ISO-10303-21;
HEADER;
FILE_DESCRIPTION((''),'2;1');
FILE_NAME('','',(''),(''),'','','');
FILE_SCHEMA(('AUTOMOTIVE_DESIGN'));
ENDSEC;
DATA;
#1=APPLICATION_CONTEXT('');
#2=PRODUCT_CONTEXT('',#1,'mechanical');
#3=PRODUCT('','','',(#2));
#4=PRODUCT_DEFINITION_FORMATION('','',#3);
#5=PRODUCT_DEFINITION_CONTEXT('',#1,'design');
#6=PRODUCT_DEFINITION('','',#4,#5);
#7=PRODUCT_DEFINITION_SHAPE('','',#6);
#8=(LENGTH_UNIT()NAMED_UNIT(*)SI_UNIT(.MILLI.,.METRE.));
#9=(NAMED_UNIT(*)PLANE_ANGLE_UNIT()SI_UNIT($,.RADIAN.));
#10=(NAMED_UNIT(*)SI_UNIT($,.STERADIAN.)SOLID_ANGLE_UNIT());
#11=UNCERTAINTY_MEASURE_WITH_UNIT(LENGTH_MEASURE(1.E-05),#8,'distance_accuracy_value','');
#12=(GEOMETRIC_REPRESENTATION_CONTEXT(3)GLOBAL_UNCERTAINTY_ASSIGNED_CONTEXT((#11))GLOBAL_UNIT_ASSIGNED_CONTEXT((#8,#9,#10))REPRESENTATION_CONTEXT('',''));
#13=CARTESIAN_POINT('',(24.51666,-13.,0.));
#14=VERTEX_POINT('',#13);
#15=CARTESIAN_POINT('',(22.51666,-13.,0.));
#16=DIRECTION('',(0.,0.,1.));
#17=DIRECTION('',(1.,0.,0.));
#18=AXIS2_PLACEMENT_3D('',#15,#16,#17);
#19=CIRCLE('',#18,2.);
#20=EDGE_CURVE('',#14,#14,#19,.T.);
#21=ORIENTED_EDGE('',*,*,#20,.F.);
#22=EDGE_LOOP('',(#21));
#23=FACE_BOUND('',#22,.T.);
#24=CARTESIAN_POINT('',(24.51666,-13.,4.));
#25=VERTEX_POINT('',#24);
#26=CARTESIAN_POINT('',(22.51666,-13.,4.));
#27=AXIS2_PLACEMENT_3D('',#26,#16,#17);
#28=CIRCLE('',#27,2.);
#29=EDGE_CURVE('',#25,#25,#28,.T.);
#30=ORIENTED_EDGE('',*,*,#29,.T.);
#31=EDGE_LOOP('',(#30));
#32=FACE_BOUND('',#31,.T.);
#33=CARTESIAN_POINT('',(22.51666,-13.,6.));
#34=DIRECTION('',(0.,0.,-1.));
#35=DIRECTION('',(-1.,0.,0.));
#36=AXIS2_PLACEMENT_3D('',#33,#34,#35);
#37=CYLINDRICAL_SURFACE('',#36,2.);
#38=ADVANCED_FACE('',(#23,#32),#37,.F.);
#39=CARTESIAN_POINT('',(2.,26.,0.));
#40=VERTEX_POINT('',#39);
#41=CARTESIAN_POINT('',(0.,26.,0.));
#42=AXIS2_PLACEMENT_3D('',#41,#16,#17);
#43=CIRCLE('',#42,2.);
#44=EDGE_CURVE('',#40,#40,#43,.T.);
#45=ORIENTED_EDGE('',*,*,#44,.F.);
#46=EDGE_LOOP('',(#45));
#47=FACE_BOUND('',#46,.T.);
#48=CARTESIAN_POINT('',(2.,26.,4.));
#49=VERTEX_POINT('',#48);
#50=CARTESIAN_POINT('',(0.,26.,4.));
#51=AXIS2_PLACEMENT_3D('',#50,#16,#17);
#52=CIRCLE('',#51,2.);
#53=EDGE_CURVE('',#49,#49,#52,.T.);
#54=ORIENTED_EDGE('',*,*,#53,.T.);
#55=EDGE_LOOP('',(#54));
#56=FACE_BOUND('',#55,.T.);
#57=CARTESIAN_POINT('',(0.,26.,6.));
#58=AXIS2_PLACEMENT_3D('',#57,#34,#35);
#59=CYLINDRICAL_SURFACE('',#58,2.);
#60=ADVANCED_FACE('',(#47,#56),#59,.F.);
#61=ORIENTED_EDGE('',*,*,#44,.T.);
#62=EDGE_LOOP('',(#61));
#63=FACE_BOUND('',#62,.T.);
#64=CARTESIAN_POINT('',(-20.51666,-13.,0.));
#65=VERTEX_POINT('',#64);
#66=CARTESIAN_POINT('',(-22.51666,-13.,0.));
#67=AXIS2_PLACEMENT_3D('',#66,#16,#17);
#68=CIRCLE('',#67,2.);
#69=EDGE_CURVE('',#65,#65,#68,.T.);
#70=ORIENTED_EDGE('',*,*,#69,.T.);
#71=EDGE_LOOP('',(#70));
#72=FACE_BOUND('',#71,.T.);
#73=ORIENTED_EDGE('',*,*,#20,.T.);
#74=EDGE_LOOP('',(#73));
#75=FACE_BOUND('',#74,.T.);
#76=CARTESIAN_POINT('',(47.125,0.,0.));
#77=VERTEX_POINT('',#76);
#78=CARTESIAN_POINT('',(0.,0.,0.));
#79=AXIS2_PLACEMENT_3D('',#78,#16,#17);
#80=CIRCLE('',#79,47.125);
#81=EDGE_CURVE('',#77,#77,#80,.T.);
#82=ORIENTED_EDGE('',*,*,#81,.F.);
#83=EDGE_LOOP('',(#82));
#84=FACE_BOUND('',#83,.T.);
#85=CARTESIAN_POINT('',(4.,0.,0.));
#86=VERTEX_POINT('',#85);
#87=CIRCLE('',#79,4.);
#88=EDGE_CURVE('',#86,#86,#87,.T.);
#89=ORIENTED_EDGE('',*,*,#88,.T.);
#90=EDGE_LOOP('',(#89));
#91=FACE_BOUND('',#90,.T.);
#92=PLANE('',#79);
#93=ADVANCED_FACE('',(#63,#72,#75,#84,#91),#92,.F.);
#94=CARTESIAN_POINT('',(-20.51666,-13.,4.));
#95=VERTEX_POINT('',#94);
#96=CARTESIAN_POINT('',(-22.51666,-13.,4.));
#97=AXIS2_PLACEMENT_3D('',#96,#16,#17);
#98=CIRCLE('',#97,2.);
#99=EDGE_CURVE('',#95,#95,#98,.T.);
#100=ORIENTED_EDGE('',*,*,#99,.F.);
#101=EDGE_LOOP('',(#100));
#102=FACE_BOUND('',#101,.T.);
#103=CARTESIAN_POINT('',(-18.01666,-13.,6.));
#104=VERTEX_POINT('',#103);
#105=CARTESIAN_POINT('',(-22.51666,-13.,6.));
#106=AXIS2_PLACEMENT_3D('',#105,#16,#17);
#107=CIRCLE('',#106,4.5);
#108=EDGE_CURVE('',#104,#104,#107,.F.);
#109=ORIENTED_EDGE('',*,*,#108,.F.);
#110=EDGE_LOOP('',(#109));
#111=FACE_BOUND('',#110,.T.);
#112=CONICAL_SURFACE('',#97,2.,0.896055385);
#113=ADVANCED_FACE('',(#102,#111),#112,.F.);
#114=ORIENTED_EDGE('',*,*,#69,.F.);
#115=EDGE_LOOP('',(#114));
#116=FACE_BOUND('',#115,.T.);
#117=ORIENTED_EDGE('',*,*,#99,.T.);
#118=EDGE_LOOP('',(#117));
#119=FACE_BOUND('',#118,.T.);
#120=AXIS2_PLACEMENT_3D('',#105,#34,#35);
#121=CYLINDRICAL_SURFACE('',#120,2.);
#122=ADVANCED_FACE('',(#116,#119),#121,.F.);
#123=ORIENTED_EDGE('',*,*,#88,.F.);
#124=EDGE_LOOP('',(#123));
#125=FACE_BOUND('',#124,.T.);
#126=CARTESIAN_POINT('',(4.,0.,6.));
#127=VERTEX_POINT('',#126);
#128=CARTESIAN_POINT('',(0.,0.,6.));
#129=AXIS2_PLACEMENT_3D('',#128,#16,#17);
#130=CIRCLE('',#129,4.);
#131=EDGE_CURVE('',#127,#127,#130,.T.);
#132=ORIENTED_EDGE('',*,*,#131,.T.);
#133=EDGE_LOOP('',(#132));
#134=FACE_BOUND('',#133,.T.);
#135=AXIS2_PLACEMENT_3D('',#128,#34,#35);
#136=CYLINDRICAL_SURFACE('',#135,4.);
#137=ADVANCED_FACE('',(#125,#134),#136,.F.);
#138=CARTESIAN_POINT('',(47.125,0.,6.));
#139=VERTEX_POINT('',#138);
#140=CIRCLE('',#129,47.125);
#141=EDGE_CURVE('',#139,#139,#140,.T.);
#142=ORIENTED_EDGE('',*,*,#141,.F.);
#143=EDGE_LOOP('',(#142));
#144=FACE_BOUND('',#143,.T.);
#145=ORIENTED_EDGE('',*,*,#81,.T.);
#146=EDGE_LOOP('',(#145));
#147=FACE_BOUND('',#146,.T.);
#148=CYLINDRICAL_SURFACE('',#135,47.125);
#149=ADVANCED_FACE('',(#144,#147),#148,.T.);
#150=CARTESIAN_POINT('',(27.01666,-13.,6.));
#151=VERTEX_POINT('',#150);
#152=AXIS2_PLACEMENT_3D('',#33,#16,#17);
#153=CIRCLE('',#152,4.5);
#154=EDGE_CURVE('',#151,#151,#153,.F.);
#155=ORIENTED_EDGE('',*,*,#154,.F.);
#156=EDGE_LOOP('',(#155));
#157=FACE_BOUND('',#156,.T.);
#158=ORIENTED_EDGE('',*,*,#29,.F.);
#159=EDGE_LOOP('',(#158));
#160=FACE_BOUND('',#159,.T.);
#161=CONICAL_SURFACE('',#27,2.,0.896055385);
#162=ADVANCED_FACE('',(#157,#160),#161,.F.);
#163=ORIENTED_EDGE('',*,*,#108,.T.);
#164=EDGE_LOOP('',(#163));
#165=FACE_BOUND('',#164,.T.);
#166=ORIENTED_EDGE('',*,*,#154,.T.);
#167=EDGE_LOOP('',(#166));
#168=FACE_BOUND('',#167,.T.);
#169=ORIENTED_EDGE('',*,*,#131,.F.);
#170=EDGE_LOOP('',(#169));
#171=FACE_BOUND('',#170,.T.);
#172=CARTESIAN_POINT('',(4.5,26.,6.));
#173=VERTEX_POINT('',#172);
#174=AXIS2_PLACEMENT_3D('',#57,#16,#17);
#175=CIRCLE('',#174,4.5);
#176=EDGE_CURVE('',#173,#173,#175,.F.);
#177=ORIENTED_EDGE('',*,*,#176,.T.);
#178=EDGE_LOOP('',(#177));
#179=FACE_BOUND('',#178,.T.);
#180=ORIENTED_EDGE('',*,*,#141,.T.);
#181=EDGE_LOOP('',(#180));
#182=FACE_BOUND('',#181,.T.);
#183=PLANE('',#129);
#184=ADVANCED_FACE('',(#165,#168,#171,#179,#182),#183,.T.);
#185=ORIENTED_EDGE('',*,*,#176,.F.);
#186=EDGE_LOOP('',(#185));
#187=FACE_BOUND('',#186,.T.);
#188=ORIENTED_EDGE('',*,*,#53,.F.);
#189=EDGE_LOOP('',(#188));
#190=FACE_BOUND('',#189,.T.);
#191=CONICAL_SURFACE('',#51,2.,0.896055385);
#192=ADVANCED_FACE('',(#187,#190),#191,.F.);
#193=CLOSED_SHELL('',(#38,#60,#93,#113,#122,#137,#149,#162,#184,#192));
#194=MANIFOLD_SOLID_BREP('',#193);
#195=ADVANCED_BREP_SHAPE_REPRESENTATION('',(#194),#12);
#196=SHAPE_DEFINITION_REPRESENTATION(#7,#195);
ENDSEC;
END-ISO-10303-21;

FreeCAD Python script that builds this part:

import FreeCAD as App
import Part
import Sketcher


def edges_at(feature, points):
    """Names of the edges that pass closest to the given points."""
    edges = feature.Shape.Edges
    near = lambda p: min(range(len(edges)), key=lambda i: edges[i].distToShape(Part.Vertex(*p))[0])
    return sorted({f"Edge{near(p) + 1}" for p in points})

doc = App.newDocument("Part")
body = doc.addObject("PartDesign::Body", "Body")

# Sketch on XY plane
sketch1 = body.newObject("Sketcher::SketchObject", "Sketch")
sketch1.AttachmentSupport = (doc.getObject("XY_Plane"), [""])
sketch1.MapMode = "FlatFace"
sketch1.addGeometry([
    Part.Circle(App.Vector(0, 0, 0), App.Vector(0, 0, 1), 47.1),  # 0
    Part.Circle(App.Vector(-22.5, -13, 0), App.Vector(0, 0, 1), 2),  # 1
    Part.Circle(App.Vector(0, 0, 0), App.Vector(0, 0, 1), 4),  # 2
    Part.Circle(App.Vector(22.5, -13, 0), App.Vector(0, 0, 1), 2),  # 3
    Part.Circle(App.Vector(0, 26, 0), App.Vector(0, 0, 1), 2),  # 4
], False)
sketch1.addConstraint([
    Sketcher.Constraint("Coincident", 0, 3, -1, 1),
    Sketcher.Constraint("Coincident", 2, 3, -1, 1),
    Sketcher.Constraint("Equal", 1, 3),
    Sketcher.Constraint("Equal", 3, 4),
    Sketcher.Constraint("Symmetric", 1, 3, 3, 3, -2),
    Sketcher.Constraint("PointOnObject", 4, 3, -2),
    Sketcher.Constraint("Diameter", 1, 4.0),
    Sketcher.Constraint("Diameter", 2, 8.0),
    Sketcher.Constraint("Diameter", 0, 94.25),
    Sketcher.Constraint("DistanceY", 1, 3, -1, 1, 13.0),
    Sketcher.Constraint("DistanceY", -1, 1, 4, 3, 26.0),
    Sketcher.Constraint("DistanceX", 1, 3, -1, 1, 22.51666),
])
pad1 = body.newObject("PartDesign::Pad", "Pad")
pad1.Profile = sketch1
pad1.Length = 6
doc.recompute()

chamfer = body.newObject("PartDesign::Chamfer", "Chamfer")
chamfer.Base = (pad1, edges_at(pad1, [(20.517, -13, 6), (-24.517, -13, 6), (-2, 26, 6)]))
chamfer.ChamferType = "Two distances"
chamfer.Size = 2.5
chamfer.Size2 = 2
chamfer.FlipDirection = True

doc.recompute()
